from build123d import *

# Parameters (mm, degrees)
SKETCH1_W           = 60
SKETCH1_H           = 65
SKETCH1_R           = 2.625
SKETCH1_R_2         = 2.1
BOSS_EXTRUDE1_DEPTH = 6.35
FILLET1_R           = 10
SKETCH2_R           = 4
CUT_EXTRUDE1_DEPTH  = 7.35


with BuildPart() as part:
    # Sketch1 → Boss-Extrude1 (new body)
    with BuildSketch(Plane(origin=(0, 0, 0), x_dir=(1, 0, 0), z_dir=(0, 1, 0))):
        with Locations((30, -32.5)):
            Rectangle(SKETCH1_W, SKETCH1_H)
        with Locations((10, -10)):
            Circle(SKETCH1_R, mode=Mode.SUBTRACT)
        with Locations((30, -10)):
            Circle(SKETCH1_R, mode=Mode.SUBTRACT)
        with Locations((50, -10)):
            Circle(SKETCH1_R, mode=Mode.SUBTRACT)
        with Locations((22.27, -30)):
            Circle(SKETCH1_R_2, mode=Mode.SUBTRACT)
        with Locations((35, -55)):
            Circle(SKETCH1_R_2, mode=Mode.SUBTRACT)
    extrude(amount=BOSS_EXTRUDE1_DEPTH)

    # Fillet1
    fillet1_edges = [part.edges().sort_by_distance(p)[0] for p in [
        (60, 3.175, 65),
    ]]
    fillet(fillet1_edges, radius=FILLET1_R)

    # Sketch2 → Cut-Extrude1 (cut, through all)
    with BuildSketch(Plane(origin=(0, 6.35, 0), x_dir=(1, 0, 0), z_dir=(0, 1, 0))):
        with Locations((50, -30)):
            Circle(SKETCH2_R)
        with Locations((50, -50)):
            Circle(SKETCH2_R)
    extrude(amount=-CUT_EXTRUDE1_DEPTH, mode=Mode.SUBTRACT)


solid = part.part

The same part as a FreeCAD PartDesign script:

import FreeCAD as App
import Part
import Sketcher


def edges_at(feature, points):
    """Names of the edges that pass closest to the given points."""
    edges = feature.Shape.Edges
    near = lambda p: min(range(len(edges)), key=lambda i: edges[i].distToShape(Part.Vertex(*p))[0])
    return sorted({f"Edge{near(p) + 1}" for p in points})


def add_polygon(sketch, points):
    """Adds a closed chain of lines whose ends are joined by coincident constraints."""
    first, n = sketch.GeometryCount, len(points)
    for a, b in zip(points, points[1:] + points[:1]):
        sketch.addGeometry(Part.LineSegment(App.Vector(*a, 0), App.Vector(*b, 0)), False)
    for i in range(n):
        sketch.addConstraint(Sketcher.Constraint("Coincident", first + i, 2, first + (i + 1) % n, 1))

doc = App.newDocument("Part")
params = doc.addObject("Spreadsheet::Sheet", "Params")
for row, (alias, value) in enumerate([
    ("sketch1_diameter", "4.2 mm"),
    ("sketch1_diameter2", "5.25 mm"),
    ("sketch1_width", "60 mm"),
    ("sketch1_height", "65 mm"),
    ("pad1_length", "6.35 mm"),
    ("fillet_radius", "10 mm"),
    ("sketch2_diameter", "8 mm"),
], start=1):
    params.set(f"A{row}", alias)
    params.set(f"B{row}", "=" + value)
    params.setAlias(f"B{row}", alias)

body = doc.addObject("PartDesign::Body", "Body")

# Sketch on XZ plane
sketch1 = body.newObject("Sketcher::SketchObject", "Sketch")
sketch1.AttachmentSupport = (doc.getObject("XZ_Plane"), [""])
sketch1.MapMode = "FlatFace"
add_polygon(sketch1, [(0, 0), (0, 65), (60, 65), (60, 0)])  # lines 0-3
sketch1.addGeometry(Part.Circle(App.Vector(35, 55, 0), App.Vector(0, 0, 1), 2.1), False)  # 4
sketch1.addGeometry(Part.Circle(App.Vector(22.3, 30, 0), App.Vector(0, 0, 1), 2.1), False)  # 5
sketch1.addGeometry(Part.Circle(App.Vector(10, 10, 0), App.Vector(0, 0, 1), 2.6), False)  # 6
sketch1.addGeometry(Part.Circle(App.Vector(30, 10, 0), App.Vector(0, 0, 1), 2.6), False)  # 7
sketch1.addGeometry(Part.Circle(App.Vector(50, 10, 0), App.Vector(0, 0, 1), 2.6), False)  # 8
sketch1.addConstraint(Sketcher.Constraint("Vertical", 0))
sketch1.addConstraint(Sketcher.Constraint("Horizontal", 1))
sketch1.addConstraint(Sketcher.Constraint("Vertical", 2))
sketch1.addConstraint(Sketcher.Constraint("Horizontal", 3))
sketch1.addConstraint(Sketcher.Constraint("Coincident", 3, 2, -1, 1))
sketch1.addConstraint(Sketcher.Constraint("Equal", 4, 5))
sketch1.addConstraint(Sketcher.Constraint("Equal", 6, 7))
sketch1.addConstraint(Sketcher.Constraint("Equal", 7, 8))
sketch1.addConstraint(Sketcher.Constraint("Horizontal", 6, 3, 7, 3))
sketch1.addConstraint(Sketcher.Constraint("Horizontal", 7, 3, 8, 3))
sketch1.addConstraint(Sketcher.Constraint("Diameter", 4, 4.2))
sketch1.addConstraint(Sketcher.Constraint("Diameter", 6, 5.25))
sketch1.addConstraint(Sketcher.Constraint("DistanceX", 1, 1, 1, 2, 60.0))
sketch1.addConstraint(Sketcher.Constraint("DistanceY", 0, 1, 0, 2, 65.0))
sketch1.addConstraint(Sketcher.Constraint("DistanceX", -1, 1, 4, 3, 35.0))
sketch1.addConstraint(Sketcher.Constraint("DistanceY", -1, 1, 4, 3, 55.0))
sketch1.addConstraint(Sketcher.Constraint("DistanceY", -1, 1, 5, 3, 30.0))
sketch1.addConstraint(Sketcher.Constraint("DistanceX", -1, 1, 6, 3, 10.0))
sketch1.addConstraint(Sketcher.Constraint("DistanceY", -1, 1, 6, 3, 10.0))
sketch1.addConstraint(Sketcher.Constraint("DistanceX", -1, 1, 7, 3, 30.0))
sketch1.addConstraint(Sketcher.Constraint("DistanceX", -1, 1, 8, 3, 50.0))
sketch1.addConstraint(Sketcher.Constraint("DistanceX", -1, 1, 5, 3, 22.27))
sketch1.setExpression("Constraints[14]", "Params.sketch1_diameter")
sketch1.setExpression("Constraints[15]", "Params.sketch1_diameter2")
sketch1.setExpression("Constraints[16]", "Params.sketch1_width")
sketch1.setExpression("Constraints[17]", "Params.sketch1_height")
pad1 = body.newObject("PartDesign::Pad", "Pad")
pad1.Profile = sketch1
pad1.setExpression("Length", "Params.pad1_length")
pad1.Reversed = True
doc.recompute()

fillet = body.newObject("PartDesign::Fillet", "Fillet")
fillet.Base = (pad1, edges_at(pad1, [(60, 3.175, 65)]))
fillet.setExpression("Radius", "Params.fillet_radius")

# Sketch on XZ plane
sketch2 = body.newObject("Sketcher::SketchObject", "Sketch001")
sketch2.AttachmentSupport = (doc.getObject("XZ_Plane"), [""])
sketch2.MapMode = "FlatFace"
sketch2.AttachmentOffset = App.Placement(App.Vector(0, 0, -6.35), App.Rotation())
sketch2.addGeometry(Part.Circle(App.Vector(50, 30, 0), App.Vector(0, 0, 1), 4), False)
sketch2.addGeometry(Part.Circle(App.Vector(50, 50, 0), App.Vector(0, 0, 1), 4), False)
sketch2.addConstraint(Sketcher.Constraint("Equal", 0, 1))
sketch2.addConstraint(Sketcher.Constraint("Vertical", 0, 3, 1, 3))
sketch2.addConstraint(Sketcher.Constraint("Diameter", 0, 8.0))
sketch2.addConstraint(Sketcher.Constraint("DistanceX", -1, 1, 0, 3, 50.0))
sketch2.addConstraint(Sketcher.Constraint("DistanceY", -1, 1, 0, 3, 30.0))
sketch2.addConstraint(Sketcher.Constraint("DistanceY", -1, 1, 1, 3, 50.0))
sketch2.setExpression("Constraints[2]", "Params.sketch2_diameter")
pocket1 = body.newObject("PartDesign::Pocket", "Pocket")
pocket1.Profile = sketch2
pocket1.Type = "ThroughAll"
pocket1.Reversed = True

doc.recompute()
